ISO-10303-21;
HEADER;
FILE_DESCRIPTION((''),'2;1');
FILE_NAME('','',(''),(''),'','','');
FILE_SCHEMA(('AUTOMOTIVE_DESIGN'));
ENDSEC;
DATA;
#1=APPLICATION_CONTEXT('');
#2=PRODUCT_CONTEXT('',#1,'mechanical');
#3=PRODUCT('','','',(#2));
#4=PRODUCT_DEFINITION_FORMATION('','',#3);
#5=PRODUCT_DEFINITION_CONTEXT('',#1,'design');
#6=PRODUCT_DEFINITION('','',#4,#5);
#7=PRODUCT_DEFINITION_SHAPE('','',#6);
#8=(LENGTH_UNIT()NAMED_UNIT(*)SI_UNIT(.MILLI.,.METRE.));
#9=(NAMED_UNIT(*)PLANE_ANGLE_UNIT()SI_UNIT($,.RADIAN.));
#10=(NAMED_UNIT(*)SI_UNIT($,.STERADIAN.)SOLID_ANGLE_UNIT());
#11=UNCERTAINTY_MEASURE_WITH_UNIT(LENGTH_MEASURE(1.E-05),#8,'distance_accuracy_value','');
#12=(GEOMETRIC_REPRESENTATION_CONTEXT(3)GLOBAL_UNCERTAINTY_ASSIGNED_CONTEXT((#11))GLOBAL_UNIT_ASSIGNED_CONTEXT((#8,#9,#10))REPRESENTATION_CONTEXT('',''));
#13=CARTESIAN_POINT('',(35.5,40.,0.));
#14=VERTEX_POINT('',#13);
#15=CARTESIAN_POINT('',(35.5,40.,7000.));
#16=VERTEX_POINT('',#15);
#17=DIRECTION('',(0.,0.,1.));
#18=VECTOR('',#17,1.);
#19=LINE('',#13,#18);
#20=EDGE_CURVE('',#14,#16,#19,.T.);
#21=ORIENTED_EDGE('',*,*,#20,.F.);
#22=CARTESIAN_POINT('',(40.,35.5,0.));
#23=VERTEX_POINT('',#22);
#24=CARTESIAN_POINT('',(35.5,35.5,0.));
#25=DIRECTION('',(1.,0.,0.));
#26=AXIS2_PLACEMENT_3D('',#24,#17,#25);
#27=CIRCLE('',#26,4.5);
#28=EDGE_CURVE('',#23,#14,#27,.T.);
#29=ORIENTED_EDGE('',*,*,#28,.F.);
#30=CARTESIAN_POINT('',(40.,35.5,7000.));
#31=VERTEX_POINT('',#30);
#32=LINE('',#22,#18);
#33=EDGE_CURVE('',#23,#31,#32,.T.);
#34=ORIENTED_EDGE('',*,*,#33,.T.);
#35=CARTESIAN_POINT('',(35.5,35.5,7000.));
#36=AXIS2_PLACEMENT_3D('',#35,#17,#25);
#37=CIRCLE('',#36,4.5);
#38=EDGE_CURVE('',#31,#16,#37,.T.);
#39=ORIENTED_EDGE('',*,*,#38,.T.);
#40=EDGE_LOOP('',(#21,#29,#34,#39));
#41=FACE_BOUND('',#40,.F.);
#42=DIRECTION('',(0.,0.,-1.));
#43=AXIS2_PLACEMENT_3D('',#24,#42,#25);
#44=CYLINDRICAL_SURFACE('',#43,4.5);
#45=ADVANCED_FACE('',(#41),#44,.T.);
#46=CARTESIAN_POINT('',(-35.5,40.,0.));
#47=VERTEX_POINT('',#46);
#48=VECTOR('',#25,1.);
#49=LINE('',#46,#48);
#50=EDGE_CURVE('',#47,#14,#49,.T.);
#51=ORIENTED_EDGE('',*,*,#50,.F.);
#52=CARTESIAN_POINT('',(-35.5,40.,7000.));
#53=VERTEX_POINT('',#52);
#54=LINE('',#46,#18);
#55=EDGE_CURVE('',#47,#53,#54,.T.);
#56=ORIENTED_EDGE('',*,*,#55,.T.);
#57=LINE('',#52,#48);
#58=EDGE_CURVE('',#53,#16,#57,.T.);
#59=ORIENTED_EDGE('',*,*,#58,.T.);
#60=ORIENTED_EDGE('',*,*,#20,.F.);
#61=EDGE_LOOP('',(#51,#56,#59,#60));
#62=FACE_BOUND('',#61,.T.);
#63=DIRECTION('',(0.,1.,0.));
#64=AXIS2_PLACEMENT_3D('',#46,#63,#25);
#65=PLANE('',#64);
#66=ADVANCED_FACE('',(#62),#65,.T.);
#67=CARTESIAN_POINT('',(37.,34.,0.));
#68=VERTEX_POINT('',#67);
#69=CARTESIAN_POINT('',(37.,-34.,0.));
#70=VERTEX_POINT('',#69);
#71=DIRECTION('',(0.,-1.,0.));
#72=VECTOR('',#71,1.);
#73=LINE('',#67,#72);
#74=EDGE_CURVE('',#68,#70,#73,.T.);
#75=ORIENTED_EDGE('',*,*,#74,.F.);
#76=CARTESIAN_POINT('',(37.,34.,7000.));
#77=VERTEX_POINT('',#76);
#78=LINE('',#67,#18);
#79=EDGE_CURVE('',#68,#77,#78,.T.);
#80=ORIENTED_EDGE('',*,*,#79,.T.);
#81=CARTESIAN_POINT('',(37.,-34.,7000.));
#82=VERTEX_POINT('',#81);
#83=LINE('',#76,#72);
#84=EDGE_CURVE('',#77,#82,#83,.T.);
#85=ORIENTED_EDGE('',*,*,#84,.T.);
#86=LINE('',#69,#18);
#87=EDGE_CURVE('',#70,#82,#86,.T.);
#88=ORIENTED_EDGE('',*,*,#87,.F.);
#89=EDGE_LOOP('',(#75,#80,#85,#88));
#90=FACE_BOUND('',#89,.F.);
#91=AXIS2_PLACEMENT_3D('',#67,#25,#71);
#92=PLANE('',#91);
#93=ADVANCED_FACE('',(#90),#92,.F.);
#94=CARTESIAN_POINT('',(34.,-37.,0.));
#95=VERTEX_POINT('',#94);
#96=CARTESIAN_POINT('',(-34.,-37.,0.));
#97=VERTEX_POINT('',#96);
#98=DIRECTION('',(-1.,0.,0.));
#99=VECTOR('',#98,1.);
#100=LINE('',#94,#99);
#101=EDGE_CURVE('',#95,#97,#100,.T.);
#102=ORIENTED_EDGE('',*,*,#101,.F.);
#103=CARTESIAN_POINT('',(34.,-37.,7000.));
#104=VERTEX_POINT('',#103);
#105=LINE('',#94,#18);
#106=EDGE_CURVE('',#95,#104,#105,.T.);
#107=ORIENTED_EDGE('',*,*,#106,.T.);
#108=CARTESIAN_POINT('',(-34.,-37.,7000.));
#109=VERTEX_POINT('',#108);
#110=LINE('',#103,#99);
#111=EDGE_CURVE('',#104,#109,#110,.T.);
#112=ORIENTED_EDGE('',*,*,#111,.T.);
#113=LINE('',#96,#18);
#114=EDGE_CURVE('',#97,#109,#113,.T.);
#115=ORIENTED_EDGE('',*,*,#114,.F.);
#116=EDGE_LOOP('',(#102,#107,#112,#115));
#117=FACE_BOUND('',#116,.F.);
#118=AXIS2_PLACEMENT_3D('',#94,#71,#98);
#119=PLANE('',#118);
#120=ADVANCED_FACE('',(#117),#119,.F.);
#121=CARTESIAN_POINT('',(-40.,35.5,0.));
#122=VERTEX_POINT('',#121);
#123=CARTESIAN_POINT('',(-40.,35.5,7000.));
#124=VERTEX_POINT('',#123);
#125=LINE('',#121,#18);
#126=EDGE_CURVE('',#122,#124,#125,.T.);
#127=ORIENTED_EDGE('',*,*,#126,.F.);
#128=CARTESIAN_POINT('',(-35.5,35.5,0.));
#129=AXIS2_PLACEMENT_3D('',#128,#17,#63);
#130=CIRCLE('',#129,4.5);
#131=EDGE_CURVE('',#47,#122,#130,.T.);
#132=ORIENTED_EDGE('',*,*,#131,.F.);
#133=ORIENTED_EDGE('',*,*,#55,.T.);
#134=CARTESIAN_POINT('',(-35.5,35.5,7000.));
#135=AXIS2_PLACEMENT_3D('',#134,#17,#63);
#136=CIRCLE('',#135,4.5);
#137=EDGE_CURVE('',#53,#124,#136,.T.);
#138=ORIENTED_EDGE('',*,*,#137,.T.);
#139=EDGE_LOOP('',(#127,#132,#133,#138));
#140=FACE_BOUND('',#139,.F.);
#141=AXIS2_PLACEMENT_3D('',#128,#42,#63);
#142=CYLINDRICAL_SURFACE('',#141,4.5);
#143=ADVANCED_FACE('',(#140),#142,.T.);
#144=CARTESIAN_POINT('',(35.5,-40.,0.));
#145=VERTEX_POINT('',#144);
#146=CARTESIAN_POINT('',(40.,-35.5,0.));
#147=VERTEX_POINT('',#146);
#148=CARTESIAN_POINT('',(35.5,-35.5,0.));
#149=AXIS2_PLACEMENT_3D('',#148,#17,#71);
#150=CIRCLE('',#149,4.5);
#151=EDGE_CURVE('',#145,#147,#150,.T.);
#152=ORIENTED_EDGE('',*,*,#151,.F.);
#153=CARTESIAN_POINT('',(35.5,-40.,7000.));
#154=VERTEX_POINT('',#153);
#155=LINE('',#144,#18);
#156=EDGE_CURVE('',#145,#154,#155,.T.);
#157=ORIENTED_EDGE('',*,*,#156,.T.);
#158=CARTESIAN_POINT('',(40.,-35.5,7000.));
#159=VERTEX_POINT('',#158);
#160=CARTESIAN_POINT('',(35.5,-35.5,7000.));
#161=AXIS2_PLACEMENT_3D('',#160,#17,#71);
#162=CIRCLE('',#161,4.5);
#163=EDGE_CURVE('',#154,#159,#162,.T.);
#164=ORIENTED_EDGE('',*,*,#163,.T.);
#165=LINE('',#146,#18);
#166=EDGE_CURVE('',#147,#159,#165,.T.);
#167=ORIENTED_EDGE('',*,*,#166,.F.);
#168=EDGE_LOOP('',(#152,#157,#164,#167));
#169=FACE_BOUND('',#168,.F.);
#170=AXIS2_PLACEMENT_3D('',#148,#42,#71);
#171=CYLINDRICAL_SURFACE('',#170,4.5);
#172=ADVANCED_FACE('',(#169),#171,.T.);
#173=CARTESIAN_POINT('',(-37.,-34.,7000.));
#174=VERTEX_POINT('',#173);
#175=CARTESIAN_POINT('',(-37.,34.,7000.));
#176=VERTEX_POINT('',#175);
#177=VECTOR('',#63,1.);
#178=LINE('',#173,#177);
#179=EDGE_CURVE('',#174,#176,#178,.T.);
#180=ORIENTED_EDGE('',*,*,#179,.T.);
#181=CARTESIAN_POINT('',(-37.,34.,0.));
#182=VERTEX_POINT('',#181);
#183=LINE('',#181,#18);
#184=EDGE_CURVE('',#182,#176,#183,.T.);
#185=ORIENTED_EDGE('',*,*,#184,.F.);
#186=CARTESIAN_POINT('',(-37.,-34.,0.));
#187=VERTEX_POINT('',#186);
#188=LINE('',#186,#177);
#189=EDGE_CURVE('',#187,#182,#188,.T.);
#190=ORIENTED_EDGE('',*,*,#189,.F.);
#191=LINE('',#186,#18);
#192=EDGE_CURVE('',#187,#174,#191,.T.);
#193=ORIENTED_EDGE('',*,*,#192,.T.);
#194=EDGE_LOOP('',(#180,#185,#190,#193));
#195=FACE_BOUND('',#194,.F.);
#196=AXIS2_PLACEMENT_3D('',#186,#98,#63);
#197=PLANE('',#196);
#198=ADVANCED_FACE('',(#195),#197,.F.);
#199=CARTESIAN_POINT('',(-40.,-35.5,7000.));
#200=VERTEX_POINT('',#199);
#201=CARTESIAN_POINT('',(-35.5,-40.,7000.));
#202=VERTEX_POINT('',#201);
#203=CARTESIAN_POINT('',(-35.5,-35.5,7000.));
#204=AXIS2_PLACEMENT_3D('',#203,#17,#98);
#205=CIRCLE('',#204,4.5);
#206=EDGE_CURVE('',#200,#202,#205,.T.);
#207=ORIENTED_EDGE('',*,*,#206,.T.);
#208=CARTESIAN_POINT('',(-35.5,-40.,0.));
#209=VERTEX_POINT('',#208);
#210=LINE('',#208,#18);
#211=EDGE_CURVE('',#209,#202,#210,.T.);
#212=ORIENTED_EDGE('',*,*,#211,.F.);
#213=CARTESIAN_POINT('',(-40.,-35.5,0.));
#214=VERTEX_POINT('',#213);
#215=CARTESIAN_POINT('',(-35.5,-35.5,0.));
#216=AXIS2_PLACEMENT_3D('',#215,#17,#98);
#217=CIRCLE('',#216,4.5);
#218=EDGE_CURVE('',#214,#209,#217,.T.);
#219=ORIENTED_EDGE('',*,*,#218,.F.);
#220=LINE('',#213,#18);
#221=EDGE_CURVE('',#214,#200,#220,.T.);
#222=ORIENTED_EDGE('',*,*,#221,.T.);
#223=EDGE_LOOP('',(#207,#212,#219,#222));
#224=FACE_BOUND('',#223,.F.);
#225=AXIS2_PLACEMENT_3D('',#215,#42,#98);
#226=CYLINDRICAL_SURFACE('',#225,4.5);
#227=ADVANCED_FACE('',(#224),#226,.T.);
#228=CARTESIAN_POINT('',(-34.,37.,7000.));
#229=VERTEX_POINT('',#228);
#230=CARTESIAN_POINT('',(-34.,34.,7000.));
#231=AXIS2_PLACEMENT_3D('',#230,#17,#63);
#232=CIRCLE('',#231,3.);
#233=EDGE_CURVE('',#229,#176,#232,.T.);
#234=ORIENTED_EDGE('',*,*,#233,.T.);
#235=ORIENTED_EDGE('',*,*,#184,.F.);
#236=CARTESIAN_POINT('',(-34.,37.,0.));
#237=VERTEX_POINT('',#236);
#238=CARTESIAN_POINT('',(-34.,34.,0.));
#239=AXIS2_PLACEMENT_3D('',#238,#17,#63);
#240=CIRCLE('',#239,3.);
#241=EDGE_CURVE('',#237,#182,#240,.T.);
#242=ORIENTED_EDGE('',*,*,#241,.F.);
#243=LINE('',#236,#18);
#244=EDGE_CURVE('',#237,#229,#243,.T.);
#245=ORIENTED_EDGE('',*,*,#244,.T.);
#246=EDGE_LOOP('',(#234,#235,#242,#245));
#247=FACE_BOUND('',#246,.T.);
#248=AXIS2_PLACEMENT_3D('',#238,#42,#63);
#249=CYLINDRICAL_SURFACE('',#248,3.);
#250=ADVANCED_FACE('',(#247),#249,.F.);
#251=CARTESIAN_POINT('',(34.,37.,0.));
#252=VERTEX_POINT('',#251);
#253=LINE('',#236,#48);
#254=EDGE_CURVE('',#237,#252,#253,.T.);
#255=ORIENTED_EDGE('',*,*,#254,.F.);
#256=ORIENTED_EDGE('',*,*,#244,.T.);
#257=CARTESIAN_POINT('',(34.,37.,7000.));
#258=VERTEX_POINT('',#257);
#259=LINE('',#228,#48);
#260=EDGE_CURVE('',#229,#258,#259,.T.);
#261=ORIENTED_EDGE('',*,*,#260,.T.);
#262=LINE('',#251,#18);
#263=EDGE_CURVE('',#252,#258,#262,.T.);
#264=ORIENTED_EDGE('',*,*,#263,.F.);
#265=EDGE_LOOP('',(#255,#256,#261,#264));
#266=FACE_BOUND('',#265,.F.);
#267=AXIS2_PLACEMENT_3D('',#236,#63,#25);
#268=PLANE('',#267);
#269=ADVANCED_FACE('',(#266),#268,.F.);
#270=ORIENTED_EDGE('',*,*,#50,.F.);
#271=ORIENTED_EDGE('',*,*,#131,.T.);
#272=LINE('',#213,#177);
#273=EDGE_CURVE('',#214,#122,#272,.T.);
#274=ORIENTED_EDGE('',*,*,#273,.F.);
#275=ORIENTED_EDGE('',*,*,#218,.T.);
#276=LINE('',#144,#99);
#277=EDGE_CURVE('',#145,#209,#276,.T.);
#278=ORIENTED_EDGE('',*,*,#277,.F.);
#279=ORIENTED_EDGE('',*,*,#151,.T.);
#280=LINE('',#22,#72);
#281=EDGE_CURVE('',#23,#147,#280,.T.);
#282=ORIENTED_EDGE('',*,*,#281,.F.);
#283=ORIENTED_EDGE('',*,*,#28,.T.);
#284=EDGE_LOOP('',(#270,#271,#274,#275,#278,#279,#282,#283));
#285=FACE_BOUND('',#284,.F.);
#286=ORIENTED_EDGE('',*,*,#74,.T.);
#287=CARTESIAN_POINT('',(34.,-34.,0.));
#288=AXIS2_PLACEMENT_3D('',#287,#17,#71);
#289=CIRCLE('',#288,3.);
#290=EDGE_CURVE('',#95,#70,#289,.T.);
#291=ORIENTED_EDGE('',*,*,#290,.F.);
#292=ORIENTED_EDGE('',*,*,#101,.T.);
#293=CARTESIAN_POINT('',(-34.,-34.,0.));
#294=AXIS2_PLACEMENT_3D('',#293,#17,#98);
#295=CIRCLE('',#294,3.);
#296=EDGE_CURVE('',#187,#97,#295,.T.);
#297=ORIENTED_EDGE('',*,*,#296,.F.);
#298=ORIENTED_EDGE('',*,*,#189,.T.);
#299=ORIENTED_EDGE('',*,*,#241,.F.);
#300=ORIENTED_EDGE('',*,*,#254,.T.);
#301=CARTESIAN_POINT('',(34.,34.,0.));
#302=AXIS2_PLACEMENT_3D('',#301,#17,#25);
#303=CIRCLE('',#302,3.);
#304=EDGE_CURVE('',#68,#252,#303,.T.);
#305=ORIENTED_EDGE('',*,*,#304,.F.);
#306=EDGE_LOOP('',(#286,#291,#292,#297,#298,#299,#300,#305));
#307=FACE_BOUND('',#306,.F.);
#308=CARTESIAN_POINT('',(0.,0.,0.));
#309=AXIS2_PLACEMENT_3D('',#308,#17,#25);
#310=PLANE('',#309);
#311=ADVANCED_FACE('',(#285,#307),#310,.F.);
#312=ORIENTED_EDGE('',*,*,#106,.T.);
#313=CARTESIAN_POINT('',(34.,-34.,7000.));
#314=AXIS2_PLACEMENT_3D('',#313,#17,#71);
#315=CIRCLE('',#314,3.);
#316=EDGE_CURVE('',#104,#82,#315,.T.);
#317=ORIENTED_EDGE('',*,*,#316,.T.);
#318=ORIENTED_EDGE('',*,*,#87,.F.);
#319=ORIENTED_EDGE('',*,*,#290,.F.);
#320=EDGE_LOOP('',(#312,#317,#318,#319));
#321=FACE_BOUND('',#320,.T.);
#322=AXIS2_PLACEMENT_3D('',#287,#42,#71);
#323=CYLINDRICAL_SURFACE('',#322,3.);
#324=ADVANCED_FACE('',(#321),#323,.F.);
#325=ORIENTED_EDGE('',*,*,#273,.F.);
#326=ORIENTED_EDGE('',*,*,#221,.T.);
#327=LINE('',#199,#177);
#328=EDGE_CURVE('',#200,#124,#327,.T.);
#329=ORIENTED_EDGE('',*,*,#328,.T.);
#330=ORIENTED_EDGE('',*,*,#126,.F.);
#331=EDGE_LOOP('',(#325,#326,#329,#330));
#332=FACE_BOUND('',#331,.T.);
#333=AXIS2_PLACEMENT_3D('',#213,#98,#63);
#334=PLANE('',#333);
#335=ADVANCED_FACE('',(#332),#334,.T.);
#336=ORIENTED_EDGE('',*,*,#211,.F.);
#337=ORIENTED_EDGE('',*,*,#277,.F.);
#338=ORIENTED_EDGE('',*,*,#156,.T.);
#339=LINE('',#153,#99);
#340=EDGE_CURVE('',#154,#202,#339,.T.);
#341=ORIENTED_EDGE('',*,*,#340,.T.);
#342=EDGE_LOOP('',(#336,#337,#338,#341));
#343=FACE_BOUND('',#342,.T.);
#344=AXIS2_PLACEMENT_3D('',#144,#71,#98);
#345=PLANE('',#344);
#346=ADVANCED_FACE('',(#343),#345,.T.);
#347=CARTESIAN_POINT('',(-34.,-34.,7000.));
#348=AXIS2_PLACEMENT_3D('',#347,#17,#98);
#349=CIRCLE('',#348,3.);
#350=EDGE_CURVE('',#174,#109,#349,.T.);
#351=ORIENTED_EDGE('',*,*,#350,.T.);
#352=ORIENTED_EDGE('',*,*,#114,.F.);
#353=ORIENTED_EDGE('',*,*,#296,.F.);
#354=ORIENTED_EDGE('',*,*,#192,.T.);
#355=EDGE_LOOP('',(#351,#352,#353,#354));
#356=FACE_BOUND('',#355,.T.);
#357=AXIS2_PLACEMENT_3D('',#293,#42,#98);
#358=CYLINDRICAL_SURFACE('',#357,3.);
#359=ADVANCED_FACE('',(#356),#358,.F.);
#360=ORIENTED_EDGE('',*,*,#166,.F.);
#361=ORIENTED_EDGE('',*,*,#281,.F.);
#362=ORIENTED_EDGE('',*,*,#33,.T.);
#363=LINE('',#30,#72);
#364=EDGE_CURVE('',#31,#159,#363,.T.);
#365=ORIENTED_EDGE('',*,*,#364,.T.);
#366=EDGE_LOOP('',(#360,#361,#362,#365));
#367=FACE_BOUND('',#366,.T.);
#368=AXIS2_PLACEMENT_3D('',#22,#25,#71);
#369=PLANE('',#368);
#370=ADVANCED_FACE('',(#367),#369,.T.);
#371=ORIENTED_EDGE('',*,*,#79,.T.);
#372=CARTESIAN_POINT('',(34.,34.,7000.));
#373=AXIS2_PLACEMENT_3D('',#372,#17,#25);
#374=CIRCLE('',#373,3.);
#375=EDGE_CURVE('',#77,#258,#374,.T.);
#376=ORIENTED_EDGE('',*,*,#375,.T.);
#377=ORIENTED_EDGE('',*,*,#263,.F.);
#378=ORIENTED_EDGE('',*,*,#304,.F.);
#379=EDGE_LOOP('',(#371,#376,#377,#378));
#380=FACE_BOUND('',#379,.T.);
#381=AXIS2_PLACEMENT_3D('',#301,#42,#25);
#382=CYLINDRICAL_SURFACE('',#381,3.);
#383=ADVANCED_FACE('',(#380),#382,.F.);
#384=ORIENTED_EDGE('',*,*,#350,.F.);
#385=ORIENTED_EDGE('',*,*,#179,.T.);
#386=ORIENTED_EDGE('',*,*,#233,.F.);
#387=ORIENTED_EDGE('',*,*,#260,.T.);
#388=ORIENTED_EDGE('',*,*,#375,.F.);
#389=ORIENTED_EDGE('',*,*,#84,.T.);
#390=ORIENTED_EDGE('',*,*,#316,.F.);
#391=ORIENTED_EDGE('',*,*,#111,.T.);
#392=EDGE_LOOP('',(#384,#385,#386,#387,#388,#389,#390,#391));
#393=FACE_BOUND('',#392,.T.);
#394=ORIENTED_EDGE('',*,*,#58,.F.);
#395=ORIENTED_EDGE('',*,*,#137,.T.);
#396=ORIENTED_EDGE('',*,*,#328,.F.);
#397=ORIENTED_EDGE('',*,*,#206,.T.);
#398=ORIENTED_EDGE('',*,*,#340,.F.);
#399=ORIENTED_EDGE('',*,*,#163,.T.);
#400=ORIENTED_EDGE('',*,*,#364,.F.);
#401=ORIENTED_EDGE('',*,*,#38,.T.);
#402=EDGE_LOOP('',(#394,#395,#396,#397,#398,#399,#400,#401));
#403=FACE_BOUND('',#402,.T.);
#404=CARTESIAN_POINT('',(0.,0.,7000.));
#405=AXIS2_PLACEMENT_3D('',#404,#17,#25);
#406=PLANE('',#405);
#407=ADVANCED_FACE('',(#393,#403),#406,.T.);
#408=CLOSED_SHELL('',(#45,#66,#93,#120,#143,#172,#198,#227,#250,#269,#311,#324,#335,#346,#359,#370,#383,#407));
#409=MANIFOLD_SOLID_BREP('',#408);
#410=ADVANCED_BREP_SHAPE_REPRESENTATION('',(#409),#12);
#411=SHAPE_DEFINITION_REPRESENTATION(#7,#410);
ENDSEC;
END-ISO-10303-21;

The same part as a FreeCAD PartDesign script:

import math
import FreeCAD as App
import Part
import Sketcher
from FreeCAD import Vector
Q = App.Units.Quantity

doc = App.newDocument("Part")
params = doc.addObject("Spreadsheet::Sheet", "Params")
for row, (alias, value) in enumerate([
    ("sketch1_radius", "3 mm"),
    ("sketch1_radius2", "4.5 mm"),
    ("pad1_length", "7000 mm"),
], start=1):
    params.set(f"A{row}", alias)
    params.set(f"B{row}", "=" + value)
    params.setAlias(f"B{row}", alias)

body = doc.addObject("PartDesign::Body", "Body")

# Sketch on XY plane
sketch1 = body.newObject("Sketcher::SketchObject", "Sketch")
sketch1.AttachmentSupport = (doc.getObject("XY_Plane"), [""])
sketch1.MapMode = "FlatFace"
sketch1.addGeometry([
    Part.LineSegment(Vector(-40, 35.5, 0), Vector(-40, -35.5, 0)),  # 0
    Part.ArcOfCircle(Part.Circle(Vector(-35.5, -35.5, 0), Vector(0, 0, 1), 4.5), math.radians(180), math.radians(270)),  # 1
    Part.LineSegment(Vector(-35.5, -40, 0), Vector(35.5, -40, 0)),  # 2
    Part.ArcOfCircle(Part.Circle(Vector(35.5, -35.5, 0), Vector(0, 0, 1), 4.5), math.radians(-90), math.radians(0)),  # 3
    Part.LineSegment(Vector(40, -35.5, 0), Vector(40, 35.5, 0)),  # 4
    Part.ArcOfCircle(Part.Circle(Vector(35.5, 35.5, 0), Vector(0, 0, 1), 4.5), math.radians(0), math.radians(90)),  # 5
    Part.LineSegment(Vector(35.5, 40, 0), Vector(-35.5, 40, 0)),  # 6
    Part.ArcOfCircle(Part.Circle(Vector(-35.5, 35.5, 0), Vector(0, 0, 1), 4.5), math.radians(90), math.radians(180)),  # 7
    Part.ArcOfCircle(Part.Circle(Vector(-34, 34, 0), Vector(0, 0, 1), 3), math.radians(90), math.radians(180)),  # 8
    Part.LineSegment(Vector(-34, 37, 0), Vector(34, 37, 0)),  # 9
    Part.ArcOfCircle(Part.Circle(Vector(34, 34, 0), Vector(0, 0, 1), 3), math.radians(0), math.radians(90)),  # 10
    Part.LineSegment(Vector(37, 34, 0), Vector(37, -34, 0)),  # 11
    Part.ArcOfCircle(Part.Circle(Vector(34, -34, 0), Vector(0, 0, 1), 3), math.radians(-90), math.radians(0)),  # 12
    Part.LineSegment(Vector(34, -37, 0), Vector(-34, -37, 0)),  # 13
    Part.ArcOfCircle(Part.Circle(Vector(-34, -34, 0), Vector(0, 0, 1), 3), math.radians(180), math.radians(270)),  # 14
    Part.LineSegment(Vector(-37, -34, 0), Vector(-37, 34, 0)),  # 15
], False)
sketch1.addConstraint([
    Sketcher.Constraint("Tangent", 0, 2, 1, 1),
    Sketcher.Constraint("Tangent", 1, 2, 2, 1),
    Sketcher.Constraint("Tangent", 2, 2, 3, 1),
    Sketcher.Constraint("Tangent", 3, 2, 4, 1),
    Sketcher.Constraint("Tangent", 4, 2, 5, 1),
    Sketcher.Constraint("Tangent", 5, 2, 6, 1),
    Sketcher.Constraint("Tangent", 6, 2, 7, 1),
    Sketcher.Constraint("Tangent", 7, 2, 0, 1),
    Sketcher.Constraint("Tangent", 8, 1, 9, 1),
    Sketcher.Constraint("Tangent", 9, 2, 10, 2),
    Sketcher.Constraint("Tangent", 10, 1, 11, 1),
    Sketcher.Constraint("Tangent", 11, 2, 12, 2),
    Sketcher.Constraint("Tangent", 12, 1, 13, 1),
    Sketcher.Constraint("Tangent", 13, 2, 14, 2),
    Sketcher.Constraint("Tangent", 14, 1, 15, 1),
    Sketcher.Constraint("Tangent", 15, 2, 8, 2),
    Sketcher.Constraint("Vertical", 0),
    Sketcher.Constraint("Horizontal", 2),
    Sketcher.Constraint("Vertical", 4),
    Sketcher.Constraint("Horizontal", 6),
    Sketcher.Constraint("Horizontal", 9),
    Sketcher.Constraint("Vertical", 11),
    Sketcher.Constraint("Horizontal", 13),
    Sketcher.Constraint("Vertical", 15),
    Sketcher.Constraint("Equal", 1, 3),
    Sketcher.Constraint("Equal", 3, 5),
    Sketcher.Constraint("Equal", 5, 7),
    Sketcher.Constraint("Equal", 8, 10),
    Sketcher.Constraint("Equal", 10, 12),
    Sketcher.Constraint("Equal", 12, 14),
    Sketcher.Constraint("Symmetric", 1, 3, 5, 3, -1, 1),
    Sketcher.Constraint("Symmetric", 8, 3, 12, 3, -1, 1),
    Sketcher.Constraint("Equal", 6, 0),
    Sketcher.Constraint("Equal", 13, 11),
    Sketcher.Constraint("Radius", 8, Q("3 mm")),
    Sketcher.Constraint("Radius", 1, Q("4.5 mm")),
    Sketcher.Constraint("DistanceX", 0, 2, -1, 1, Q("40 mm")),
    Sketcher.Constraint("DistanceY", 8, 1, 6, 2, Q("3 mm")),
])
sketch1.setExpression("Constraints[34]", "Params.sketch1_radius")
sketch1.setExpression("Constraints[35]", "Params.sketch1_radius2")
pad1 = body.newObject("PartDesign::Pad", "Pad")
pad1.Profile = sketch1
pad1.setExpression("Length", "Params.pad1_length")

doc.recompute()
